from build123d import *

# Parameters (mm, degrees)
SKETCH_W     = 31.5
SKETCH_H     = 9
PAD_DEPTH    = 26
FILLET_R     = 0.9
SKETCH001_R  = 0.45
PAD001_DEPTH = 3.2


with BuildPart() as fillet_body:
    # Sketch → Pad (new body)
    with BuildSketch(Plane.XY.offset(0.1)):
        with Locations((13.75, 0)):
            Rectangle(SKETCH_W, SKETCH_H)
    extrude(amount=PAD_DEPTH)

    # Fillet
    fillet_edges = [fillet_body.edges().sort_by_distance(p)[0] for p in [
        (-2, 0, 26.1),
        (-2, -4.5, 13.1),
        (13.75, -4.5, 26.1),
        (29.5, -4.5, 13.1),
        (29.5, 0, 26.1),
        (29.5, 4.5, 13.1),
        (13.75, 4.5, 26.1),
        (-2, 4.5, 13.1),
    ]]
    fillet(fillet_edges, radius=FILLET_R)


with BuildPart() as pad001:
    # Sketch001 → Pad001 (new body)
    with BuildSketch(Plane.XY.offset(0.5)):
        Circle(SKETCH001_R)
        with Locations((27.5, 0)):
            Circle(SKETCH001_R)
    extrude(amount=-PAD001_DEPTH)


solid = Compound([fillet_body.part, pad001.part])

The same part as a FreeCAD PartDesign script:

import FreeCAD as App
import Part
import Sketcher

V = App.Vector
Q = App.Units.Quantity


def edges_at(feature, points):
    """Names of the edges that pass closest to the given points."""
    edges = feature.Shape.Edges
    near = lambda p: min(range(len(edges)), key=lambda i: edges[i].distToShape(Part.Vertex(*p))[0])
    return sorted({f"Edge{near(p) + 1}" for p in points})


def add_polygon(sketch, points):
    """Adds a closed chain of lines whose ends are joined by coincident constraints."""
    first, n = sketch.GeometryCount, len(points)
    for a, b in zip(points, points[1:] + points[:1]):
        sketch.addGeometry(Part.LineSegment(App.Vector(*a, 0), App.Vector(*b, 0)), False)
    for i in range(n):
        sketch.addConstraint(Sketcher.Constraint("Coincident", first + i, 2, first + (i + 1) % n, 1))

doc = App.newDocument("Part")
params = doc.addObject("Spreadsheet::Sheet", "Params")
for row, (alias, value) in enumerate([
    ("sketch1_height", "9 mm"),
    ("sketch1_width", "31.5 mm"),
    ("pad1_length", "26 mm"),
    ("fillet_radius", "0.9 mm"),
    ("sketch2_diameter", "0.9 mm"),
    ("pad2_length", "3.2 mm"),
], start=1):
    params.set(f"A{row}", alias)
    params.set(f"B{row}", "=" + value)
    params.setAlias(f"B{row}", alias)

body = doc.addObject("PartDesign::Body", "Body")

# Sketch on XY plane
sketch1 = body.newObject("Sketcher::SketchObject", "Sketch")
sketch1.AttachmentSupport = (doc.getObject("XY_Plane"), [""])
sketch1.MapMode = "FlatFace"
sketch1.AttachmentOffset = App.Placement(V(0, 0, 0.1), App.Rotation())
add_polygon(sketch1, [(-2, 4.5), (-2, -4.5), (29.5, -4.5), (29.5, 4.5)])  # lines 0-3
sketch1.addConstraint(Sketcher.Constraint("Vertical", 0))
sketch1.addConstraint(Sketcher.Constraint("Horizontal", 1))
sketch1.addConstraint(Sketcher.Constraint("Vertical", 2))
sketch1.addConstraint(Sketcher.Constraint("Horizontal", 3))
sketch1.addConstraint(Sketcher.Constraint("DistanceY", 0, 2, 0, 1, Q("9 mm")))
sketch1.addConstraint(Sketcher.Constraint("DistanceX", 1, 1, 1, 2, Q("31.5 mm")))
sketch1.addConstraint(Sketcher.Constraint("DistanceX", 0, 2, -1, 1, Q("2 mm")))
sketch1.addConstraint(Sketcher.Constraint("DistanceY", 0, 2, -1, 1, Q("4.5 mm")))
sketch1.setExpression("Constraints[8]", "Params.sketch1_height")
sketch1.setExpression("Constraints[9]", "Params.sketch1_width")
pad1 = body.newObject("PartDesign::Pad", "Pad")
pad1.Profile = sketch1
pad1.setExpression("Length", "Params.pad1_length")
doc.recompute()

fillet = body.newObject("PartDesign::Fillet", "Fillet")
fillet.Base = (pad1, edges_at(pad1, [
    (-2, 0, 26.1),
    (-2, -4.5, 13.1),
    (13.75, -4.5, 26.1),
    (29.5, -4.5, 13.1),
    (29.5, 0, 26.1),
    (29.5, 4.5, 13.1),
    (13.75, 4.5, 26.1),
    (-2, 4.5, 13.1),
]))
fillet.setExpression("Radius", "Params.fillet_radius")
body2 = doc.addObject("PartDesign::Body", "Body001")
body2.AllowCompound = True

# Sketch on XY plane
sketch2 = body2.newObject("Sketcher::SketchObject", "Sketch001")
sketch2.AttachmentSupport = (doc.getObject("XY_Plane001"), [""])
sketch2.MapMode = "FlatFace"
sketch2.AttachmentOffset = App.Placement(V(0, 0, 0.5), App.Rotation())
sketch2.addGeometry(Part.Circle(V(0, 0, 0), V(0, 0, 1), 0.45), False)
sketch2.addGeometry(Part.Circle(V(27.5, 0, 0), V(0, 0, 1), 0.45), False)
sketch2.addConstraint(Sketcher.Constraint("Coincident", 0, 3, -1, 1))
sketch2.addConstraint(Sketcher.Constraint("Equal", 0, 1))
sketch2.addConstraint(Sketcher.Constraint("PointOnObject", 1, 3, -1))
sketch2.addConstraint(Sketcher.Constraint("Diameter", 0, Q("0.9 mm")))
sketch2.addConstraint(Sketcher.Constraint("DistanceX", -1, 1, 1, 3, Q("27.5 mm")))
sketch2.setExpression("Constraints[3]", "Params.sketch2_diameter")
pad2 = body2.newObject("PartDesign::Pad", "Pad001")
pad2.Profile = sketch2
pad2.setExpression("Length", "Params.pad2_length")
pad2.Reversed = True

doc.recompute()
